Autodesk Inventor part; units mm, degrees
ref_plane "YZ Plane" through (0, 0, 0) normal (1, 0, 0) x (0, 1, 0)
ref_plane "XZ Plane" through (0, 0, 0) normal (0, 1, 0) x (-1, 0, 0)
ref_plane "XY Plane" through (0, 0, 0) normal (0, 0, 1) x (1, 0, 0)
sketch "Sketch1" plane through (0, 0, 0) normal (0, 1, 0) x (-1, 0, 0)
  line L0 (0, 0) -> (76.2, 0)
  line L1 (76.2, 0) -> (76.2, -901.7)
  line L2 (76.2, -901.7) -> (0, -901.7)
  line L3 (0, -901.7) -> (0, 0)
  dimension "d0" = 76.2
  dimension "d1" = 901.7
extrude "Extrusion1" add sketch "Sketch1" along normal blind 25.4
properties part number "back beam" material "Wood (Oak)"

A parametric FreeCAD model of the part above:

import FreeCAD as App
import Part
import Sketcher
Q = App.Units.Quantity

doc = App.newDocument("Part")
params = doc.addObject("Spreadsheet::Sheet", "Params")
for row, (alias, value) in enumerate([
    ("sketch1_width", "3 in"),
    ("sketch1_height", "35.5 in"),
    ("pad1_length", "1 in"),
], start=1):
    params.set(f"A{row}", alias)
    params.set(f"B{row}", "=" + value)
    params.setAlias(f"B{row}", alias)

body = doc.addObject("PartDesign::Body", "Body")

# Sketch on XZ plane
sketch1 = body.newObject("Sketcher::SketchObject", "Sketch")
sketch1.AttachmentSupport = (doc.getObject("XZ_Plane"), [""])
sketch1.MapMode = "FlatFace"
sketch1.addGeometry([
    Part.LineSegment(App.Vector(-76, 0, 0), App.Vector(0, 0, 0)),
    Part.LineSegment(App.Vector(0, 0, 0), App.Vector(0, -902, 0)),
    Part.LineSegment(App.Vector(0, -902, 0), App.Vector(-76, -902, 0)),
    Part.LineSegment(App.Vector(-76, -902, 0), App.Vector(-76, 0, 0)),
], False)
sketch1.addConstraint([
    Sketcher.Constraint("Coincident", 0, 2, 1, 1),
    Sketcher.Constraint("Coincident", 1, 2, 2, 1),
    Sketcher.Constraint("Coincident", 2, 2, 3, 1),
    Sketcher.Constraint("Coincident", 3, 2, 0, 1),
    Sketcher.Constraint("Horizontal", 0),
    Sketcher.Constraint("Vertical", 1),
    Sketcher.Constraint("Horizontal", 2),
    Sketcher.Constraint("Vertical", 3),
    Sketcher.Constraint("Coincident", 0, 2, -1, 1),
    Sketcher.Constraint("DistanceX", 0, 1, 0, 2, Q("3 in")),
    Sketcher.Constraint("DistanceY", 1, 2, 1, 1, Q("35.5 in")),
])
sketch1.setExpression("Constraints[9]", "Params.sketch1_width")
sketch1.setExpression("Constraints[10]", "Params.sketch1_height")
pad1 = body.newObject("PartDesign::Pad", "Pad")
pad1.Profile = sketch1
pad1.setExpression("Length", "Params.pad1_length")
pad1.Reversed = True

doc.recompute()
